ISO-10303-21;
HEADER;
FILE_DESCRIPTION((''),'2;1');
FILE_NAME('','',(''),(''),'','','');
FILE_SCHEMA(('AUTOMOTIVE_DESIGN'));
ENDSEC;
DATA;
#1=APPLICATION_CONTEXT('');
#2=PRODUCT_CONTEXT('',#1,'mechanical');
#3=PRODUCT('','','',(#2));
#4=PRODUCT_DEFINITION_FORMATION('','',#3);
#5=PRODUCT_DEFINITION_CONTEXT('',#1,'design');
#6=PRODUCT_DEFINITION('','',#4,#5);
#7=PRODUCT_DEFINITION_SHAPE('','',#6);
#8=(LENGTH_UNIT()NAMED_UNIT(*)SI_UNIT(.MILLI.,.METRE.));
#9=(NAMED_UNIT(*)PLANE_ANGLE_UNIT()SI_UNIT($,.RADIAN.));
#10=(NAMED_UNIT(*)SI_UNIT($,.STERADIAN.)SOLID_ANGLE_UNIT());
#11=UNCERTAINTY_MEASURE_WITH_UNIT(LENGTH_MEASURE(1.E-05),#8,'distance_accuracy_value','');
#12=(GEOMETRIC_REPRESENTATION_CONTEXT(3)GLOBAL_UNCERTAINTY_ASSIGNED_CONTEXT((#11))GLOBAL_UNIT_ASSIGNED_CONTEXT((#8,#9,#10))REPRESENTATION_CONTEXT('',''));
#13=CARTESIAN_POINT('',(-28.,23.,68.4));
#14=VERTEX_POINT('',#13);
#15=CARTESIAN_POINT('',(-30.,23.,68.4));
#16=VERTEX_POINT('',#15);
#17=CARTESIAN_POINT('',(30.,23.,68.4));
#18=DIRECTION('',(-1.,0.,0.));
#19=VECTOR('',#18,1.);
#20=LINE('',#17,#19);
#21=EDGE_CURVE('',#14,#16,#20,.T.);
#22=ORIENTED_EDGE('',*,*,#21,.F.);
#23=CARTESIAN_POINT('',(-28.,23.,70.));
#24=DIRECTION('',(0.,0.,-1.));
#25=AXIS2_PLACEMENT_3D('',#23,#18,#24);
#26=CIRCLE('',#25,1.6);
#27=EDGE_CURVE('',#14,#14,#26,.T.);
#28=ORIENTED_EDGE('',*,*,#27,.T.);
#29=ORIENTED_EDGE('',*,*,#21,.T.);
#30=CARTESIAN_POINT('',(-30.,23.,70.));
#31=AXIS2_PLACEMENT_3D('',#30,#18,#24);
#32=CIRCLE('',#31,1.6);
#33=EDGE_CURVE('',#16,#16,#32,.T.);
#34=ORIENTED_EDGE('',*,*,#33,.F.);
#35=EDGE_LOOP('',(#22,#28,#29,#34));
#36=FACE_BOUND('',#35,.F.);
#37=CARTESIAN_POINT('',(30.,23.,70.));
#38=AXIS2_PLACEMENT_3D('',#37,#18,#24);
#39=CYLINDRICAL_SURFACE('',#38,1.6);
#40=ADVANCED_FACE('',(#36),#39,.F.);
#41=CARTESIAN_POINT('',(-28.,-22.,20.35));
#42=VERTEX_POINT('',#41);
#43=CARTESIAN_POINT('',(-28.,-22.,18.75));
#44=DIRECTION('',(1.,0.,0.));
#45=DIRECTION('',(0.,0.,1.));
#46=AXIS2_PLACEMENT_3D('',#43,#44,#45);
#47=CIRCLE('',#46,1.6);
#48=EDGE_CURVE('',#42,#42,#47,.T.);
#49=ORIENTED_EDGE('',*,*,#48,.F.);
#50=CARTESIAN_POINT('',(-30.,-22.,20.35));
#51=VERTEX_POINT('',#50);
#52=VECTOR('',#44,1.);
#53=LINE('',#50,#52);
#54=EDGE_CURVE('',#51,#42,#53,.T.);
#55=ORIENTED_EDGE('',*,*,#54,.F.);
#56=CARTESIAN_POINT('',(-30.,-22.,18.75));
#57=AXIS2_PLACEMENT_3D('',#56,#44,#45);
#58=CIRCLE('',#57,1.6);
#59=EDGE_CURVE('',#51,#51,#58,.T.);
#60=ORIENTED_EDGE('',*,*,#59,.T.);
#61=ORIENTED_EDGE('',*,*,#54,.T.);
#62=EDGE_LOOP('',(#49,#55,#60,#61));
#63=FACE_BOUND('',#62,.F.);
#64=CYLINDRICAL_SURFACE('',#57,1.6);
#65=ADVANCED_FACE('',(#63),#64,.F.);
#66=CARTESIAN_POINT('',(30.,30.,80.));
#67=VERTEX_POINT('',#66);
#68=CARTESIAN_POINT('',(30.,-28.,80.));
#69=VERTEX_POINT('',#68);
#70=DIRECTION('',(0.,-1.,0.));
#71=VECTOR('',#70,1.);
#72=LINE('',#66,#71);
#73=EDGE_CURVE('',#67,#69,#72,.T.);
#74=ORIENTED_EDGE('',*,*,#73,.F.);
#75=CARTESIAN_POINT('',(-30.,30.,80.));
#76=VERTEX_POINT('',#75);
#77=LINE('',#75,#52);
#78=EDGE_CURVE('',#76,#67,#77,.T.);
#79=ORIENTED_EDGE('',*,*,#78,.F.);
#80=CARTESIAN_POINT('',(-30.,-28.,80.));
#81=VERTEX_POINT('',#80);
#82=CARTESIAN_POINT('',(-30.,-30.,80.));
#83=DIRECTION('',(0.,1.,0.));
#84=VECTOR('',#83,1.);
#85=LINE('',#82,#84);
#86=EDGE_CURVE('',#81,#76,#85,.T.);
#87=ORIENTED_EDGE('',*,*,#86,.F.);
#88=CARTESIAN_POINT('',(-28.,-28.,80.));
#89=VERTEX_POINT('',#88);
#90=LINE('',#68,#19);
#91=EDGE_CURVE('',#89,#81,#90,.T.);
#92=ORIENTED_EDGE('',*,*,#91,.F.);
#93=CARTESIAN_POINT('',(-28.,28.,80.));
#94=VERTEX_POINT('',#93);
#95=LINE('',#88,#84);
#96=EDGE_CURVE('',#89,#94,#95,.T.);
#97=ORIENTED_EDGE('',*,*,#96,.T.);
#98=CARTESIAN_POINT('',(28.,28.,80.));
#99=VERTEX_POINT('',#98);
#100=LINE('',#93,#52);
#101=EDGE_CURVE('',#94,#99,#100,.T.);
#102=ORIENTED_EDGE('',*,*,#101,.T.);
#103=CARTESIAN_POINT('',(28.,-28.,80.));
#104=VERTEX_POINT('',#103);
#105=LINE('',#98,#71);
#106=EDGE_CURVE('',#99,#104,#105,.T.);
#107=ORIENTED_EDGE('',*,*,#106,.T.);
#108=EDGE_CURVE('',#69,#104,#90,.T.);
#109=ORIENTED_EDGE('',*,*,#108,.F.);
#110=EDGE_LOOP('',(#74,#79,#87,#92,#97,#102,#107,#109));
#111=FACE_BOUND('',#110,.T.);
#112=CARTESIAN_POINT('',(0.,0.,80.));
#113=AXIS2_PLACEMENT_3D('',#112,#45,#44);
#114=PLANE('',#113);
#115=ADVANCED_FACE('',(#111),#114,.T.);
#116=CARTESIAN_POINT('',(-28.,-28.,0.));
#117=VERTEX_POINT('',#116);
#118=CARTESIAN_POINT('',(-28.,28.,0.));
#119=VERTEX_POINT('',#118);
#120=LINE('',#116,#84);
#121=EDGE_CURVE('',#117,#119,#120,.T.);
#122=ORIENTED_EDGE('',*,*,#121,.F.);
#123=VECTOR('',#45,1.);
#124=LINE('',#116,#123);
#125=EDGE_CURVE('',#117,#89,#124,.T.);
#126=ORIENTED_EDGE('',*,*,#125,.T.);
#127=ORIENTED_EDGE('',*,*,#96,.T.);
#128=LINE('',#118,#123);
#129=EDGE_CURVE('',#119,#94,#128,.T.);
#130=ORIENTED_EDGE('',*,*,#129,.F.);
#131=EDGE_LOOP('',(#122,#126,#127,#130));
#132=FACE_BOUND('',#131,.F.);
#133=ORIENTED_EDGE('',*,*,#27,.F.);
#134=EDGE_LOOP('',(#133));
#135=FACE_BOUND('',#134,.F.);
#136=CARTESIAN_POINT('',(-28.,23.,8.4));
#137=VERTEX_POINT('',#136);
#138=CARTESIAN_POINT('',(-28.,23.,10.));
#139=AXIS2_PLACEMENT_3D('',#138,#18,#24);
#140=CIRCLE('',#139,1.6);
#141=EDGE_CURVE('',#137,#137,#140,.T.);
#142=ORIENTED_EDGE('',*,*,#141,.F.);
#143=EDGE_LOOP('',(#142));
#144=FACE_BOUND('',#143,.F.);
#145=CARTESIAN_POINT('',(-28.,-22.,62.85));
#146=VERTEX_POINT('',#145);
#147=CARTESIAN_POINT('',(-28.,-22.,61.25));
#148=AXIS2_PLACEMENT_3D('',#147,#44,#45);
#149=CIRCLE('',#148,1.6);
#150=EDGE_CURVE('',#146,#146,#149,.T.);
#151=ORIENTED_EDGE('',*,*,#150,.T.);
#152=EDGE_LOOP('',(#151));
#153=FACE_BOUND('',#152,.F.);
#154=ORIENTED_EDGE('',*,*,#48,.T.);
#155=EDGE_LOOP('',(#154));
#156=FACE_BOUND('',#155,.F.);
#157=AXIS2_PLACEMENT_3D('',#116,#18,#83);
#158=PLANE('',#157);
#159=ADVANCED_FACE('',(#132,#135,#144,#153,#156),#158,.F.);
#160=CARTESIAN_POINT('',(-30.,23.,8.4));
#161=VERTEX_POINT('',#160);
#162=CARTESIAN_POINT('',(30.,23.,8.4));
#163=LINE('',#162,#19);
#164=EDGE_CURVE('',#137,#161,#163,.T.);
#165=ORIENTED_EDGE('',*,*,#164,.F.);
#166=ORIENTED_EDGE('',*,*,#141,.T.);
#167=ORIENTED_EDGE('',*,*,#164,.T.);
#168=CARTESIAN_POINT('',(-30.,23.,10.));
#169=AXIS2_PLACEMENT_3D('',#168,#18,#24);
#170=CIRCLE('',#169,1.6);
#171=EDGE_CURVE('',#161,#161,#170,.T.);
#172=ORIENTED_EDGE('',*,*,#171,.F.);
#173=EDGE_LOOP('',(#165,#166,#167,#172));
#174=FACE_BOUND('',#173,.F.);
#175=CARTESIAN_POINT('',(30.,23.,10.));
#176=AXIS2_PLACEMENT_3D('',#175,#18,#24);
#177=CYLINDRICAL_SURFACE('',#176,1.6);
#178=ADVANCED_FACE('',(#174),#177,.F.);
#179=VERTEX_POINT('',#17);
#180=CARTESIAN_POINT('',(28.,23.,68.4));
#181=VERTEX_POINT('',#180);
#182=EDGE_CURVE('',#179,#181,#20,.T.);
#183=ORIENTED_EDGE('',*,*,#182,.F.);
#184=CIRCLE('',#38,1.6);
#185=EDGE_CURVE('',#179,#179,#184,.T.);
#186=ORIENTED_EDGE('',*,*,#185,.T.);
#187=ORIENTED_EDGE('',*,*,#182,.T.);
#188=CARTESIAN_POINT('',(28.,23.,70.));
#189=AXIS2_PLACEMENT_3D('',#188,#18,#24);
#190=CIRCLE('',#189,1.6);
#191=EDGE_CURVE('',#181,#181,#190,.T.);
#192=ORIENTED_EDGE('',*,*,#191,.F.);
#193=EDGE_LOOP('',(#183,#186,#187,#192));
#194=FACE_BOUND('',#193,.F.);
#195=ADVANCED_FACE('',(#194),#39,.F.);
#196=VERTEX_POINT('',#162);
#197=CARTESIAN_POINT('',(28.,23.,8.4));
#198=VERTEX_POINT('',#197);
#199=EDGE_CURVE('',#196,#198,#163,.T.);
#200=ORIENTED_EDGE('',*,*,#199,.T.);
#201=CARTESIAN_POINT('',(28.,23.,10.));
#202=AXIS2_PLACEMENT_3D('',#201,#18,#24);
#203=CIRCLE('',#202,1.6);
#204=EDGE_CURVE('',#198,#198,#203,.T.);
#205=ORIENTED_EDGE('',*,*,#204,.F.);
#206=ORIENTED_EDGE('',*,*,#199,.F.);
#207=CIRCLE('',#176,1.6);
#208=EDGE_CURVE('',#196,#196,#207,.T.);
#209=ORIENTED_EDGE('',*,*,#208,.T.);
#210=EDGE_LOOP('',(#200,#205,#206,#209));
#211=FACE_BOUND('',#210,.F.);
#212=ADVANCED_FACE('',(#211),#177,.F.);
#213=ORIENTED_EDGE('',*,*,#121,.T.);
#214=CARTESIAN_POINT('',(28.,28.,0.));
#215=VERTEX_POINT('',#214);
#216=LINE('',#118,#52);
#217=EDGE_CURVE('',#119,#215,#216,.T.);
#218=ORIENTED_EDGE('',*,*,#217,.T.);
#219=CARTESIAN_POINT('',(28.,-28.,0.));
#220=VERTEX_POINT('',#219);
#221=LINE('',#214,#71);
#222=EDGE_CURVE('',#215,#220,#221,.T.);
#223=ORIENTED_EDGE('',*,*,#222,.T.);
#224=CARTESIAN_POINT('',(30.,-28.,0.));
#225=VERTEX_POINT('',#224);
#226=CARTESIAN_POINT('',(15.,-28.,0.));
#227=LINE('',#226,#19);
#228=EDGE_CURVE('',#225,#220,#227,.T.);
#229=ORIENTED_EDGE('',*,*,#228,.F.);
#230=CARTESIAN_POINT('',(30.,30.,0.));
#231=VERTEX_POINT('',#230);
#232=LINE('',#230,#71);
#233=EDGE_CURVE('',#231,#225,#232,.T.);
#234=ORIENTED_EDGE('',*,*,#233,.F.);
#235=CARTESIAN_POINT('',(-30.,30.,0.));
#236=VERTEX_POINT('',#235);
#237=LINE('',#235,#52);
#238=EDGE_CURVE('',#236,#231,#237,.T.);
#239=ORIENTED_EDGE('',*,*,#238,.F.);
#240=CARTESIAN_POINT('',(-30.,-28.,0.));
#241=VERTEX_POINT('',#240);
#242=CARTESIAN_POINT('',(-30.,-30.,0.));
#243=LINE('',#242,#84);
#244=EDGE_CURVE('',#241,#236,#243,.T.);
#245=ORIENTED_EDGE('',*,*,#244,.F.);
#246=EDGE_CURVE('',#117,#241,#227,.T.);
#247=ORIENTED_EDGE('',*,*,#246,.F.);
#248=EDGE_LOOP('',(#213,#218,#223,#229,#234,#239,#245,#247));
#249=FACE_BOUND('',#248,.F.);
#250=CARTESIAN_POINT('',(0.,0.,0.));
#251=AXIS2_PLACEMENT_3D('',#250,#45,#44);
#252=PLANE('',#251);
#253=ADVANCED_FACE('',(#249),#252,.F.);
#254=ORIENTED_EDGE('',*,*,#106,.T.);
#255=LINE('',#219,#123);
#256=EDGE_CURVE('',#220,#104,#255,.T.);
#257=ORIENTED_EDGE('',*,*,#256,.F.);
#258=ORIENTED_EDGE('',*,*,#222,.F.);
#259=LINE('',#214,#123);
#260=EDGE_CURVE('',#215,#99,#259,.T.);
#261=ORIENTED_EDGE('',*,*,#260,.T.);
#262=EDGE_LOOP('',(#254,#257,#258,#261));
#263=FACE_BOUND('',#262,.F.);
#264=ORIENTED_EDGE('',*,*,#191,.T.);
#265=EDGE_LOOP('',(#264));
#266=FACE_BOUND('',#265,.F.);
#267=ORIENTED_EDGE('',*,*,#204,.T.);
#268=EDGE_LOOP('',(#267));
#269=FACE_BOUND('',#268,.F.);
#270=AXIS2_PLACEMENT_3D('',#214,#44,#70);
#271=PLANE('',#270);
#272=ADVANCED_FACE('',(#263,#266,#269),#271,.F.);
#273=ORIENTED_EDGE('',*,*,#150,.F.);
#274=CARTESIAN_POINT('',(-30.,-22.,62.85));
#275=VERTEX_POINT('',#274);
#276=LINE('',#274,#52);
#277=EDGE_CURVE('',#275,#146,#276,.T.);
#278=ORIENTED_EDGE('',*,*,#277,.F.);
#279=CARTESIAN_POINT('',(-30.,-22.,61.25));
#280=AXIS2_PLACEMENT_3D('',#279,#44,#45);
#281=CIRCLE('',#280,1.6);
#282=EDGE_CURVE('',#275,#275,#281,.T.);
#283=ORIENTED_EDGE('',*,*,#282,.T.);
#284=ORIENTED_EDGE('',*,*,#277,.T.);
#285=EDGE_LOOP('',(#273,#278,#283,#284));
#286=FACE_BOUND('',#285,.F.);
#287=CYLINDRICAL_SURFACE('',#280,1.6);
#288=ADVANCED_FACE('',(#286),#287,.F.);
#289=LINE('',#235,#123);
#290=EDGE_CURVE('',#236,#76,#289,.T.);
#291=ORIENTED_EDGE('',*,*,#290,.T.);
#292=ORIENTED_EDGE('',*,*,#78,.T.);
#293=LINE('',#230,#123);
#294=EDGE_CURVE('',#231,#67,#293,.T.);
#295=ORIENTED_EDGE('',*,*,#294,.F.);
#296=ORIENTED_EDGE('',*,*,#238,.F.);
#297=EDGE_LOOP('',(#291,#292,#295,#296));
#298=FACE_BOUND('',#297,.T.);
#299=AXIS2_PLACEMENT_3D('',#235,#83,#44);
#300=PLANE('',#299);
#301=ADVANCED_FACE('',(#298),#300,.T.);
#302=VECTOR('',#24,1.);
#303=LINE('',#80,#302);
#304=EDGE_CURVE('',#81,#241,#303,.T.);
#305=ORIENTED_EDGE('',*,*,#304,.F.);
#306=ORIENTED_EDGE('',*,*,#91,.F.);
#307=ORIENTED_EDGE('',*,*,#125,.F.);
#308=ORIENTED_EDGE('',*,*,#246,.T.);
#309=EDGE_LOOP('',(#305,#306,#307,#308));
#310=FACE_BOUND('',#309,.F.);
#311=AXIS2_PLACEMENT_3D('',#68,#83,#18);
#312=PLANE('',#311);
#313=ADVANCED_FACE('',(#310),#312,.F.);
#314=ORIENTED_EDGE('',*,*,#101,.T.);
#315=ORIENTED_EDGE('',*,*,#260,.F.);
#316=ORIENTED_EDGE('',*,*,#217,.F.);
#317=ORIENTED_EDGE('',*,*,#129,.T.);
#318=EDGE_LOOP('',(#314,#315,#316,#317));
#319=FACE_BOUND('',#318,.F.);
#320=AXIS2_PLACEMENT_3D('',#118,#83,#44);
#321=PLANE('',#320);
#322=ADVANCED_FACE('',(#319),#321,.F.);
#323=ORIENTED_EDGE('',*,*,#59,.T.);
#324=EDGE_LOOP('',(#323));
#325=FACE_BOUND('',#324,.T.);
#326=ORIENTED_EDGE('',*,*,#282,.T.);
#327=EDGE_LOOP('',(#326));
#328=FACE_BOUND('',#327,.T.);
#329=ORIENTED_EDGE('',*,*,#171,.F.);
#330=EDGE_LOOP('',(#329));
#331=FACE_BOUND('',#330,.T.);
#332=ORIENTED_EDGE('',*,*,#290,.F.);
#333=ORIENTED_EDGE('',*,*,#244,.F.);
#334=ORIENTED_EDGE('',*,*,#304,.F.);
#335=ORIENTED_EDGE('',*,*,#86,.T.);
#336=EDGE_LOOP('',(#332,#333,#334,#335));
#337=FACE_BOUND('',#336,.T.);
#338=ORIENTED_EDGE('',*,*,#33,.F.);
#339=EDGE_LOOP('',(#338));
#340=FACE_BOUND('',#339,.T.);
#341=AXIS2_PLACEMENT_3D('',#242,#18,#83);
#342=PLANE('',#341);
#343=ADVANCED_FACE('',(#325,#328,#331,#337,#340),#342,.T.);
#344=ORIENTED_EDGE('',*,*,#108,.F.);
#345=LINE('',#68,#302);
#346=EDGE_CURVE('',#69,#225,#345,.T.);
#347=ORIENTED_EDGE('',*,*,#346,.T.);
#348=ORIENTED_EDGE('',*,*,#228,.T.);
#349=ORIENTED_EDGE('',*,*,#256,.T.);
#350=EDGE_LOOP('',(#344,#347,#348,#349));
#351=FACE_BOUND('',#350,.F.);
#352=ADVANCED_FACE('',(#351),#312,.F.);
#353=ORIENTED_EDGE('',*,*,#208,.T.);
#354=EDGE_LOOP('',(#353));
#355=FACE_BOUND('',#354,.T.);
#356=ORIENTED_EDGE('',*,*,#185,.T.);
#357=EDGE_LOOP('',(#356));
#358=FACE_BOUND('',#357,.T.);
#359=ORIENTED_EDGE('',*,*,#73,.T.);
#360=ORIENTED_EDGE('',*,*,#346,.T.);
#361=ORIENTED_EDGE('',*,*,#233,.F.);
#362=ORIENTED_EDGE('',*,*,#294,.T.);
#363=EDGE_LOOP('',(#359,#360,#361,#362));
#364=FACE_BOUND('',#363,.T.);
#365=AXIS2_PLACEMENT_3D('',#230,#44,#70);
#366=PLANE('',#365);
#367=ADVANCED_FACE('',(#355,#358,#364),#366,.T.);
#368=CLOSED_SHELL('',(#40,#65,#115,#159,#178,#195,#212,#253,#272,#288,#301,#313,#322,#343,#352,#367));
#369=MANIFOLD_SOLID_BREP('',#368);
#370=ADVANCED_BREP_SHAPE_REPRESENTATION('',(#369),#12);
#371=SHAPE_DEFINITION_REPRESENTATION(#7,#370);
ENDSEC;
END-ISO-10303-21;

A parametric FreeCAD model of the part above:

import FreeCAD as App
import Part
import Sketcher
from FreeCAD import Vector

doc = App.newDocument("Part")
body = doc.addObject("PartDesign::Body", "Body")

sketch1 = body.newObject("Sketcher::SketchObject", "Sketch")
sketch1.AttachmentSupport = (doc.getObject("XY_Plane"), [""])
sketch1.MapMode = "FlatFace"
sketch1.addGeometry([
    Part.LineSegment(Vector(30, 30, 0), Vector(-30, 30, 0)),
    Part.LineSegment(Vector(-30, 30, 0), Vector(-30, -30, 0)),
    Part.LineSegment(Vector(-30, -30, 0), Vector(30, -30, 0)),
    Part.LineSegment(Vector(30, -30, 0), Vector(30, 30, 0)),
    Part.LineSegment(Vector(-28, -28, 0), Vector(-28, 28, 0)),
    Part.LineSegment(Vector(-28, 28, 0), Vector(28, 28, 0)),
    Part.LineSegment(Vector(28, 28, 0), Vector(28, -28, 0)),
    Part.LineSegment(Vector(28, -28, 0), Vector(-28, -28, 0)),
], False)
sketch1.addConstraint([
    Sketcher.Constraint("Coincident", 0, 2, 1, 1),
    Sketcher.Constraint("Coincident", 1, 2, 2, 1),
    Sketcher.Constraint("Coincident", 2, 2, 3, 1),
    Sketcher.Constraint("Coincident", 3, 2, 0, 1),
    Sketcher.Constraint("Coincident", 4, 2, 5, 1),
    Sketcher.Constraint("Coincident", 5, 2, 6, 1),
    Sketcher.Constraint("Coincident", 6, 2, 7, 1),
    Sketcher.Constraint("Coincident", 7, 2, 4, 1),
    Sketcher.Constraint("Horizontal", 0),
    Sketcher.Constraint("Vertical", 1),
    Sketcher.Constraint("Horizontal", 2),
    Sketcher.Constraint("Vertical", 3),
    Sketcher.Constraint("Vertical", 4),
    Sketcher.Constraint("Horizontal", 5),
    Sketcher.Constraint("Vertical", 6),
    Sketcher.Constraint("Horizontal", 7),
    Sketcher.Constraint("Symmetric", 0, 2, 2, 2, -1, 1),
    Sketcher.Constraint("Symmetric", 4, 2, 6, 2, -1, 1),
    Sketcher.Constraint("Equal", 2, 1),
    Sketcher.Constraint("Equal", 7, 4),
    Sketcher.Constraint("DistanceX", 0, 2, 0, 1, 60.0),
    Sketcher.Constraint("DistanceX", 5, 1, 5, 2, 56.0),
])
pad1 = body.newObject("PartDesign::Pad", "Pad")
pad1.Profile = sketch1
pad1.Length = 80

sketch2 = body.newObject("Sketcher::SketchObject", "Sketch001")
sketch2.AttachmentSupport = (doc.getObject("XY_Plane"), [""])
sketch2.MapMode = "FlatFace"
sketch2.AttachmentOffset = App.Placement(Vector(0, 0, 80), App.Rotation())
sketch2.addGeometry([
    Part.LineSegment(Vector(30, -30, 0), Vector(30, -28, 0)),
    Part.LineSegment(Vector(30, -28, 0), Vector(-30, -28, 0)),
    Part.LineSegment(Vector(-30, -28, 0), Vector(-30, -30, 0)),
    Part.LineSegment(Vector(-30, -30, 0), Vector(30, -30, 0)),
], False)
sketch2.addConstraint([
    Sketcher.Constraint("Coincident", 0, 2, 1, 1),
    Sketcher.Constraint("Coincident", 1, 2, 2, 1),
    Sketcher.Constraint("Coincident", 2, 2, 3, 1),
    Sketcher.Constraint("Coincident", 3, 2, 0, 1),
    Sketcher.Constraint("Vertical", 0),
    Sketcher.Constraint("Horizontal", 1),
    Sketcher.Constraint("Vertical", 2),
    Sketcher.Constraint("Horizontal", 3),
    Sketcher.Constraint("DistanceY", 0, 1, 0, 2, 2.0),
    Sketcher.Constraint("DistanceX", 1, 2, 1, 1, 60.0),
    Sketcher.Constraint("DistanceX", -1, 1, 0, 2, 30.0),
    Sketcher.Constraint("DistanceY", 0, 2, -1, 1, 28.0),
])
pocket1 = body.newObject("PartDesign::Pocket", "Pocket")
pocket1.Profile = sketch2
pocket1.Length = 100

sketch3 = body.newObject("Sketcher::SketchObject", "Sketch002")
sketch3.AttachmentSupport = (doc.getObject("YZ_Plane"), [""])
sketch3.MapMode = "FlatFace"
sketch3.AttachmentOffset = App.Placement(Vector(0, 0, 30), App.Rotation())
sketch3.addGeometry([
    Part.Circle(Vector(23, 70, 0), Vector(0, 0, 1), 1.6),
    Part.Circle(Vector(23, 10, 0), Vector(0, 0, 1), 1.6),
], False)
sketch3.addConstraint([
    Sketcher.Constraint("Equal", 0, 1),
    Sketcher.Constraint("Vertical", 0, 3, 1, 3),
    Sketcher.Constraint("Diameter", 0, 3.2),
    Sketcher.Constraint("DistanceX", -1, 1, 0, 3, 23.0),
    Sketcher.Constraint("DistanceY", -1, 1, 0, 3, 70.0),
    Sketcher.Constraint("DistanceY", -1, 1, 1, 3, 10.0),
])
doc.recompute()
hole = body.newObject("PartDesign::Hole", "Hole")
hole.Profile = sketch3
hole.ThreadType = "None"
hole.Diameter = 3.2
hole.DepthType = "ThroughAll"

sketch4 = body.newObject("Sketcher::SketchObject", "Sketch003")
sketch4.AttachmentSupport = (doc.getObject("YZ_Plane"), [""])
sketch4.MapMode = "FlatFace"
sketch4.AttachmentOffset = App.Placement(Vector(0, 0, -30), App.Rotation())
sketch4.addGeometry([
    Part.Circle(Vector(-22, 61.2, 0), Vector(0, 0, 1), 1.6),
    Part.Circle(Vector(-22, 18.8, 0), Vector(0, 0, 1), 1.6),
], False)
sketch4.addConstraint([
    Sketcher.Constraint("Equal", 0, 1),
    Sketcher.Constraint("Vertical", 0, 3, 1, 3),
    Sketcher.Constraint("Diameter", 0, 3.2),
    Sketcher.Constraint("DistanceX", 0, 3, -1, 1, 22.0),
    Sketcher.Constraint("DistanceY", 1, 3, 0, 3, 42.5),
    Sketcher.Constraint("DistanceY", -1, 1, 0, 3, 61.25),
])
doc.recompute()
hole2 = body.newObject("PartDesign::Hole", "Hole001")
hole2.Profile = sketch4
hole2.ThreadType = "None"
hole2.Diameter = 3.2
hole2.DepthType = "Dimension"
hole2.Depth = 8
hole2.DrillPoint = "Angled"
hole2.DrillPointAngle = 118
hole2.Reversed = True

doc.recompute()
